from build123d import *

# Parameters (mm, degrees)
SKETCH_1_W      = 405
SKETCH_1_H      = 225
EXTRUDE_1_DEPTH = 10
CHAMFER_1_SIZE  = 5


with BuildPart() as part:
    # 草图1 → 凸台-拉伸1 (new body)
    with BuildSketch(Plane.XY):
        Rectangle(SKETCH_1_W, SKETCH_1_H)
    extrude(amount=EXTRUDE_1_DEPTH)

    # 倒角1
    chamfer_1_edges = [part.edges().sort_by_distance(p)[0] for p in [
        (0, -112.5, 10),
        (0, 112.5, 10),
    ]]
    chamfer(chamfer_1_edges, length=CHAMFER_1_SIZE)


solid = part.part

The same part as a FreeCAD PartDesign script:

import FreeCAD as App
import Part
import Sketcher
from FreeCAD import Vector
Q = App.Units.Quantity


def edges_at(feature, points):
    """Names of the edges that pass closest to the given points."""
    edges = feature.Shape.Edges
    near = lambda p: min(range(len(edges)), key=lambda i: edges[i].distToShape(Part.Vertex(*p))[0])
    return sorted({f"Edge{near(p) + 1}" for p in points})


def add_polygon(sketch, points):
    """Adds a closed chain of lines whose ends are joined by coincident constraints."""
    first, n = sketch.GeometryCount, len(points)
    for a, b in zip(points, points[1:] + points[:1]):
        sketch.addGeometry(Part.LineSegment(App.Vector(*a, 0), App.Vector(*b, 0)), False)
    for i in range(n):
        sketch.addConstraint(Sketcher.Constraint("Coincident", first + i, 2, first + (i + 1) % n, 1))

doc = App.newDocument("Part")
body = doc.addObject("PartDesign::Body", "Body")

# Sketch on XY plane
sketch1 = body.newObject("Sketcher::SketchObject", "Sketch")
sketch1.AttachmentSupport = (doc.getObject("XY_Plane"), [""])
sketch1.MapMode = "FlatFace"
add_polygon(sketch1, [(-202, 112), (-202, -112), (202, -112), (202, 112)])  # lines 0-3
sketch1.addConstraint(Sketcher.Constraint("Vertical", 0))
sketch1.addConstraint(Sketcher.Constraint("Horizontal", 1))
sketch1.addConstraint(Sketcher.Constraint("Vertical", 2))
sketch1.addConstraint(Sketcher.Constraint("Horizontal", 3))
sketch1.addConstraint(Sketcher.Constraint("Symmetric", 0, 2, 2, 2, -1, 1))
sketch1.addConstraint(Sketcher.Constraint("DistanceX", 1, 1, 1, 2, Q("405 mm")))
sketch1.addConstraint(Sketcher.Constraint("DistanceY", 0, 2, 0, 1, Q("225 mm")))
pad1 = body.newObject("PartDesign::Pad", "Pad")
pad1.Profile = sketch1
pad1.Length = 10
doc.recompute()

chamfer = body.newObject("PartDesign::Chamfer", "Chamfer")
chamfer.Base = (pad1, edges_at(pad1, [(0, -112.5, 10), (0, 112.5, 10)]))
chamfer.Size = 5

doc.recompute()
